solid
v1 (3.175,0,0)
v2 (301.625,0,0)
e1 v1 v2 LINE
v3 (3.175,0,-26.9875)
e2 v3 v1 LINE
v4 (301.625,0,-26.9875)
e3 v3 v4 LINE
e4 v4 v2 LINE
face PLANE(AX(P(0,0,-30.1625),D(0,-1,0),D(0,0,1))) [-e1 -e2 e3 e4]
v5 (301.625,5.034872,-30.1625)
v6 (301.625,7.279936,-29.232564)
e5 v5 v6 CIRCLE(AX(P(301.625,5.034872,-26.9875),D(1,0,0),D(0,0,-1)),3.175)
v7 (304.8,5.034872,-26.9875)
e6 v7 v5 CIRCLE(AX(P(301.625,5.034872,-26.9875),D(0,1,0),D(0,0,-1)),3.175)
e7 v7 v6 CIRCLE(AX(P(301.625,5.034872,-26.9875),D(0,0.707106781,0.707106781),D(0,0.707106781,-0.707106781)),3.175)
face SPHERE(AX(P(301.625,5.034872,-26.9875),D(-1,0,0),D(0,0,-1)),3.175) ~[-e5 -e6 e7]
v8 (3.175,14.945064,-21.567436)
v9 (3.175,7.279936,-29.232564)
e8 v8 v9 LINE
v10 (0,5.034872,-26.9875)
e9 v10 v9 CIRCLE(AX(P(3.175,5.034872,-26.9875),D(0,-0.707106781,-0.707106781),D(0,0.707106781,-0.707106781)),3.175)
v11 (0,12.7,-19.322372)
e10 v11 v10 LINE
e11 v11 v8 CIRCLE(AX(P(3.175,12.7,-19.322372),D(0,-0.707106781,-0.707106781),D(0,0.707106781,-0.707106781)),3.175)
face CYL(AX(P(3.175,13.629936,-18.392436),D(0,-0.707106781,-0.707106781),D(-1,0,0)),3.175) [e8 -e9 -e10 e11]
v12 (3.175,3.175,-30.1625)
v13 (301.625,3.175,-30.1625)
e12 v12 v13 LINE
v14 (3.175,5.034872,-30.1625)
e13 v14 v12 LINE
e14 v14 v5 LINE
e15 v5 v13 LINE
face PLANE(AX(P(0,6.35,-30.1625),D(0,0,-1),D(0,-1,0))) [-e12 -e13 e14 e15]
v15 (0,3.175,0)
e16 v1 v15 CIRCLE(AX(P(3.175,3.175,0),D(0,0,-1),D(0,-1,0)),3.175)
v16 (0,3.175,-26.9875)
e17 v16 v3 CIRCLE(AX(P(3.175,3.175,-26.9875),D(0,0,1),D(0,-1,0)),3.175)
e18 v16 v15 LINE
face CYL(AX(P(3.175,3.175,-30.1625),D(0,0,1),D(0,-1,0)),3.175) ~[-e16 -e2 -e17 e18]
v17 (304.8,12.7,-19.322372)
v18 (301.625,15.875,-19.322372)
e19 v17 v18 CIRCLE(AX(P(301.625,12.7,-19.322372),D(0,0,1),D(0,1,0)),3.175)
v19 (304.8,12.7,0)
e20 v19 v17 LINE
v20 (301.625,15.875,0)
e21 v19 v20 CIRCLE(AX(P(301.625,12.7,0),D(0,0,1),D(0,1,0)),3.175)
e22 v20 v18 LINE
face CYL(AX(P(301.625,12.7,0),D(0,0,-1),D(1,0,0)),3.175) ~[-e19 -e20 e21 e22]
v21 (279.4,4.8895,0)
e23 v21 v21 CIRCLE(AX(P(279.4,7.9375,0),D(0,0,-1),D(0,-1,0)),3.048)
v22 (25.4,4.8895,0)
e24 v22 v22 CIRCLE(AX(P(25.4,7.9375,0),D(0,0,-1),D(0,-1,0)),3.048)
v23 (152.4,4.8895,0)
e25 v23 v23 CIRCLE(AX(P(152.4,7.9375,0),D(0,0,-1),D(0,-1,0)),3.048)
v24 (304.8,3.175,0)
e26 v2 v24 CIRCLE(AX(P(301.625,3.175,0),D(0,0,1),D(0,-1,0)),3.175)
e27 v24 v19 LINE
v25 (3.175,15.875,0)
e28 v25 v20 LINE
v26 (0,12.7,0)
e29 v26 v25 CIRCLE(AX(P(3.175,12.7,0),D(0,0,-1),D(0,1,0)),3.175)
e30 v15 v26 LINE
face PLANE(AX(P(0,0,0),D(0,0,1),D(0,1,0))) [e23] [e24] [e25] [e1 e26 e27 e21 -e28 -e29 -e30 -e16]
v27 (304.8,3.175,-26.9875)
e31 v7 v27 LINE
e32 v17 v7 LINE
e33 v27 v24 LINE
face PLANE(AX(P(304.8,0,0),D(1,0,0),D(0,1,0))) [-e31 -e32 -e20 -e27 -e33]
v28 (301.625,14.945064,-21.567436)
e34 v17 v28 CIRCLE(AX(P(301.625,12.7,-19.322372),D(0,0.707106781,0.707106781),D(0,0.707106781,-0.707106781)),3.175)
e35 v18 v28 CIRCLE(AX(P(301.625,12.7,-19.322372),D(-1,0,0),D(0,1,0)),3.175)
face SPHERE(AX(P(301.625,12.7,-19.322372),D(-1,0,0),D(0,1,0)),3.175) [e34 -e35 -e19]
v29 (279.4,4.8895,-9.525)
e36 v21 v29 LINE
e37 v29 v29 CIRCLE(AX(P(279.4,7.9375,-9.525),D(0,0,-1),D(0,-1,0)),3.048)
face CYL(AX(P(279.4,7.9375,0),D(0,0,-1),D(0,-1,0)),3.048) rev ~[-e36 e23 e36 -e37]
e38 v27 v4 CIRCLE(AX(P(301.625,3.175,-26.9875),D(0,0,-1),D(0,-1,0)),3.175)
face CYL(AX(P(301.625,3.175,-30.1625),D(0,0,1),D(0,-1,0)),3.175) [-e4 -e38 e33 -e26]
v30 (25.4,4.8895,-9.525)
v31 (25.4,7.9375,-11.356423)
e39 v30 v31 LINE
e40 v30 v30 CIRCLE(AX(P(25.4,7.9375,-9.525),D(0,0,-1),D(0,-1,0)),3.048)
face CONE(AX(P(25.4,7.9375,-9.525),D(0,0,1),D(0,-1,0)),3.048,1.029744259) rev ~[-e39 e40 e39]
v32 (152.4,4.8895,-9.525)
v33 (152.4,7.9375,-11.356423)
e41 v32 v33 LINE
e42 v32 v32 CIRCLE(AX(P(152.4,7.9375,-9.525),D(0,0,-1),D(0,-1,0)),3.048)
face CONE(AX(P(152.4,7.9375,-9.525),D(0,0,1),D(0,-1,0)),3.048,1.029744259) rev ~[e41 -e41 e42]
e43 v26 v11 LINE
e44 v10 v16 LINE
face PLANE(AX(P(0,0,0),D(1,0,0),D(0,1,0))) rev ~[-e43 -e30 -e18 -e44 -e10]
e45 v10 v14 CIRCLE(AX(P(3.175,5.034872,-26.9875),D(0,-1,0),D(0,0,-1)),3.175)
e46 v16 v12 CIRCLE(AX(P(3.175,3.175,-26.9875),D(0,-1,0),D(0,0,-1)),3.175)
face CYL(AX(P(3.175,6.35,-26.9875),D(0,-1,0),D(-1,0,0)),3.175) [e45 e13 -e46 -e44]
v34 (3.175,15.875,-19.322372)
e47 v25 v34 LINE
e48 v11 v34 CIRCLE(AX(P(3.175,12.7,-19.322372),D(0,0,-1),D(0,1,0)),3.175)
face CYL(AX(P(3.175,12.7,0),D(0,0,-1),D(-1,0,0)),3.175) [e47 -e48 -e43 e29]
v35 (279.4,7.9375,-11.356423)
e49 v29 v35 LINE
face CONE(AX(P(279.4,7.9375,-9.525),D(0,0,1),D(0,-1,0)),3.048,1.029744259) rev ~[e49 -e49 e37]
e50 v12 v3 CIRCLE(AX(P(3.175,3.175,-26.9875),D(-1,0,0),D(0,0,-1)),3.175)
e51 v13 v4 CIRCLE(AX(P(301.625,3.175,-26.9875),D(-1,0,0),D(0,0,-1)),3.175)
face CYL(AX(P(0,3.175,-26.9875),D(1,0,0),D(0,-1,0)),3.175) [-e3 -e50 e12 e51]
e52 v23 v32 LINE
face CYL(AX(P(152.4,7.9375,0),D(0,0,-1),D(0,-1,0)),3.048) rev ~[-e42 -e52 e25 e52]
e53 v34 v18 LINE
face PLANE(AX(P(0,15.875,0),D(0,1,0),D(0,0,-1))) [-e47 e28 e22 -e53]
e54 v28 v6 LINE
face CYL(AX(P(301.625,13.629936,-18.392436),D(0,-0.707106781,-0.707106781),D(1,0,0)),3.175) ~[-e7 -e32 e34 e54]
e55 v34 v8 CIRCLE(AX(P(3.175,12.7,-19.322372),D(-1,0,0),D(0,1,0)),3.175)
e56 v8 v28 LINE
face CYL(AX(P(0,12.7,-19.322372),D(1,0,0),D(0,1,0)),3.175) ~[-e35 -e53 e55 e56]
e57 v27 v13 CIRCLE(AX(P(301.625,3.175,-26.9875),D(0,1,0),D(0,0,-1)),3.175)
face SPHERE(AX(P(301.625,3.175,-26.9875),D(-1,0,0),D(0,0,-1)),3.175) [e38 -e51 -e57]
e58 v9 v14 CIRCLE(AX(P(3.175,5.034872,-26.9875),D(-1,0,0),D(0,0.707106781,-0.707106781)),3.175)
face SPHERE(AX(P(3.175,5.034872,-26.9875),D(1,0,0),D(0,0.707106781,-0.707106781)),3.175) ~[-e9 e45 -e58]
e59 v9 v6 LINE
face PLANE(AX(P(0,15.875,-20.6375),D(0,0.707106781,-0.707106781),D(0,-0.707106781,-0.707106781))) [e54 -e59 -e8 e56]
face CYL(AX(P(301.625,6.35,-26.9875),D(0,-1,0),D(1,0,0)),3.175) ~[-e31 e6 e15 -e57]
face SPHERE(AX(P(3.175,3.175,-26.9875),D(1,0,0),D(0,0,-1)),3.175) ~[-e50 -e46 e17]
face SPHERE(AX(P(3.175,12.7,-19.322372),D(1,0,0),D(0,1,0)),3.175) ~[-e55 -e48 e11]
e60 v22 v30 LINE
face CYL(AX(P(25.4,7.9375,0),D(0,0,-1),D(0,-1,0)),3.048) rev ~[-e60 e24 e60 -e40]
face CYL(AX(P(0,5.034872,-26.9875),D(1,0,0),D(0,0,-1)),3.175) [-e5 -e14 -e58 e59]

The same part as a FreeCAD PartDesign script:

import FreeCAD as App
import Part
import Sketcher

V = App.Vector
Q = App.Units.Quantity


def edges_at(feature, points):
    """Names of the edges that pass closest to the given points."""
    edges = feature.Shape.Edges
    near = lambda p: min(range(len(edges)), key=lambda i: edges[i].distToShape(Part.Vertex(*p))[0])
    return sorted({f"Edge{near(p) + 1}" for p in points})


def add_polygon(sketch, points):
    """Adds a closed chain of lines whose ends are joined by coincident constraints."""
    first, n = sketch.GeometryCount, len(points)
    for a, b in zip(points, points[1:] + points[:1]):
        sketch.addGeometry(Part.LineSegment(App.Vector(*a, 0), App.Vector(*b, 0)), False)
    for i in range(n):
        sketch.addConstraint(Sketcher.Constraint("Coincident", first + i, 2, first + (i + 1) % n, 1))

doc = App.newDocument("Part")
body = doc.addObject("PartDesign::Body", "Body")

sketch1 = body.newObject("Sketcher::SketchObject", "Sketch")
sketch1.AttachmentSupport = (doc.getObject("YZ_Plane"), [""])
sketch1.MapMode = "FlatFace"
add_polygon(sketch1, [(16, 0), (0, 0), (0, -30), (6, -30), (16, -21)])
sketch1.addConstraint([
    Sketcher.Constraint("Horizontal", 0),
    Sketcher.Constraint("Vertical", 1),
    Sketcher.Constraint("Horizontal", 2),
    Sketcher.Constraint("Vertical", 4),
    Sketcher.Constraint("Coincident", 0, 2, -1, 1),
    Sketcher.Constraint("DistanceX", 2, 1, 2, 2, Q("0.25 in")),
    Sketcher.Constraint("DistanceX", 0, 2, 0, 1, Q("0.625 in")),
    Sketcher.Constraint("DistanceY", 1, 2, 1, 1, Q("1.1875 in")),
    Sketcher.Constraint("Angle", 3, Q("45 deg")),
])
pad1 = body.newObject("PartDesign::Pad", "Pad")
pad1.Profile = sketch1
pad1.Length = Q("12 in")

sketch2 = body.newObject("Sketcher::SketchObject", "Sketch001")
sketch2.AttachmentSupport = (doc.getObject("XY_Plane"), [""])
sketch2.MapMode = "FlatFace"
sketch2.addGeometry([
    Part.Circle(V(25.4, 7.9, 0), V(0, 0, 1), 3),
    Part.Circle(V(152.4, 7.9, 0), V(0, 0, 1), 3),
    Part.Circle(V(279.4, 7.9, 0), V(0, 0, 1), 3),
], False)
sketch2.addConstraint([
    Sketcher.Constraint("Equal", 0, 1),
    Sketcher.Constraint("Equal", 1, 2),
    Sketcher.Constraint("Horizontal", 0, 3, 1, 3),
    Sketcher.Constraint("Horizontal", 1, 3, 2, 3),
    Sketcher.Constraint("Diameter", 0, Q("0.24 in")),
    Sketcher.Constraint("DistanceX", -1, 1, 0, 3, Q("1 in")),
    Sketcher.Constraint("DistanceX", -1, 1, 1, 3, Q("6 in")),
    Sketcher.Constraint("DistanceX", -1, 1, 2, 3, Q("11 in")),
    Sketcher.Constraint("DistanceY", -1, 1, 0, 3, Q("0.3125 in")),
])
doc.recompute()
hole = body.newObject("PartDesign::Hole", "Hole")
hole.Profile = sketch2
hole.ThreadType = "None"
hole.Diameter = Q("0.24 in")
hole.DepthType = "Dimension"
hole.Depth = Q("0.375 in")
hole.DrillPoint = "Angled"
hole.DrillPointAngle = 118
doc.recompute()

fillet = body.newObject("PartDesign::Fillet", "Fillet")
fillet.Base = (hole, edges_at(hole, [
    (152.4, 6.35, -30.163),
    (152.4, 0, -30.163),
    (0, 11.113, -25.4),
    (0, 3.175, -30.163),
    (0, 0, -15.081),
    (304.8, 3.175, -30.163),
    (304.8, 0, -15.081),
    (304.8, 11.113, -25.4),
    (152.4, 15.875, -20.637),
    (304.8, 15.875, -10.319),
    (0, 15.875, -10.319),
]))
fillet.Radius = Q("0.125 in")

doc.recompute()
